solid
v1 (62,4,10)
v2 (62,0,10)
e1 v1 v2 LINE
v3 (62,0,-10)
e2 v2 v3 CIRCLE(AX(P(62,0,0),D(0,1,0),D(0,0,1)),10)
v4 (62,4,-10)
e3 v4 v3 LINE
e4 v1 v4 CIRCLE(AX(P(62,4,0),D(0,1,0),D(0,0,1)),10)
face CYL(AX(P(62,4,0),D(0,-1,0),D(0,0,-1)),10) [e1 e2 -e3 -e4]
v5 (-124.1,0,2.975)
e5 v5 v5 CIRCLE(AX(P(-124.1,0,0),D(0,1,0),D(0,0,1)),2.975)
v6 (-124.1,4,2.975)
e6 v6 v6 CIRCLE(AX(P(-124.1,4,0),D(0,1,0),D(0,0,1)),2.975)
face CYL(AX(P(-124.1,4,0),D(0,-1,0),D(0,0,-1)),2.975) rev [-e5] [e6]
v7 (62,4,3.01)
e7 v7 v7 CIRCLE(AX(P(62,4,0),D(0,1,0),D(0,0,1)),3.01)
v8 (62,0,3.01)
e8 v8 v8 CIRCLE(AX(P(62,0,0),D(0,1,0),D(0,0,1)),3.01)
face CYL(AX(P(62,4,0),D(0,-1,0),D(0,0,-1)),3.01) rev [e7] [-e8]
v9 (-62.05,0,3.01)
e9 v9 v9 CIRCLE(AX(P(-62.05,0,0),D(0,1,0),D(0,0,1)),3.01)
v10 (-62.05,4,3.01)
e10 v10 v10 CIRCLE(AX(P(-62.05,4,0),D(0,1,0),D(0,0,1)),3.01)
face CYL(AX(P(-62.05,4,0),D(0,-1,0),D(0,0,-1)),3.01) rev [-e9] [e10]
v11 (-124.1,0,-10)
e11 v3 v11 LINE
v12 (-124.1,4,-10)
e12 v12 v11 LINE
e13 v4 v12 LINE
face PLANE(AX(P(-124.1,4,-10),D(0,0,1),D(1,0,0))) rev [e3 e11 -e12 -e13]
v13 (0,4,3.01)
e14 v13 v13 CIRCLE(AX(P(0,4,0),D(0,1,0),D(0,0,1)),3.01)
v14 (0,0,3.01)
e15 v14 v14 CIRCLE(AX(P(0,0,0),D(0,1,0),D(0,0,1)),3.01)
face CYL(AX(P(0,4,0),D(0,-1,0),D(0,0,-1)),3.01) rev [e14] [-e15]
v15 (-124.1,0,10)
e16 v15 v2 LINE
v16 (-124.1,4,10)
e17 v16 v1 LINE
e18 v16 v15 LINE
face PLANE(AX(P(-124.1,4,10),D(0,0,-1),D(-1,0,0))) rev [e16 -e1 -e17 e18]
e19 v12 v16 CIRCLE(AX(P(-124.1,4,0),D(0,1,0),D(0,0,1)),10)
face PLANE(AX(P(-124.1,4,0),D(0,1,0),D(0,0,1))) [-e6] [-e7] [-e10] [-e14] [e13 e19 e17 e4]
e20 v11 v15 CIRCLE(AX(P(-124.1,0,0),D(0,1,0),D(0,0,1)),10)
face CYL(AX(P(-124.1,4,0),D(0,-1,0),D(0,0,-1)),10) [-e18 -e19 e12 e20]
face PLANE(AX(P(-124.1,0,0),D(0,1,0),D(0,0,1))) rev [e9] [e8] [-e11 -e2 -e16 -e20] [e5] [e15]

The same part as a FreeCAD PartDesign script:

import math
import FreeCAD as App
import Part
import Sketcher
from FreeCAD import Vector
Q = App.Units.Quantity

doc = App.newDocument("Part")
body = doc.addObject("PartDesign::Body", "Body")

# Sketch on XZ plane
sketch1 = body.newObject("Sketcher::SketchObject", "Sketch")
sketch1.AttachmentSupport = (doc.getObject("XZ_Plane"), [""])
sketch1.MapMode = "FlatFace"
sketch1.addGeometry(Part.LineSegment(Vector(62, -10, 0), Vector(-124.1, -10, 0)), False)
sketch1.addGeometry(Part.ArcOfCircle(Part.Circle(Vector(-124.1, 0, 0), Vector(0, 0, 1), 10), math.radians(90), math.radians(270)), False)
sketch1.addGeometry(Part.LineSegment(Vector(-124.1, 10, 0), Vector(62, 10, 0)), False)
sketch1.addGeometry(Part.ArcOfCircle(Part.Circle(Vector(62, 0, 0), Vector(0, 0, 1), 10), math.radians(-90), math.radians(90)), False)
sketch1.addGeometry(Part.Circle(Vector(62, 0, 0), Vector(0, 0, 1), 3), False)
sketch1.addGeometry(Part.Circle(Vector(0, 0, 0), Vector(0, 0, 1), 3), False)
sketch1.addGeometry(Part.Circle(Vector(-62, 0, 0), Vector(0, 0, 1), 3), False)
sketch1.addGeometry(Part.Circle(Vector(-124.1, 0, 0), Vector(0, 0, 1), 3), False)
sketch1.addConstraint(Sketcher.Constraint("Tangent", 0, 2, 1, 2))
sketch1.addConstraint(Sketcher.Constraint("Tangent", 1, 1, 2, 1))
sketch1.addConstraint(Sketcher.Constraint("Tangent", 2, 2, 3, 2))
sketch1.addConstraint(Sketcher.Constraint("Tangent", 3, 1, 0, 1))
sketch1.addConstraint(Sketcher.Constraint("Horizontal", 0))
sketch1.addConstraint(Sketcher.Constraint("Horizontal", 2))
sketch1.addConstraint(Sketcher.Constraint("Coincident", 5, 3, -1, 1))
sketch1.addConstraint(Sketcher.Constraint("Coincident", 4, 3, 3, 3))
sketch1.addConstraint(Sketcher.Constraint("Coincident", 7, 3, 1, 3))
sketch1.addConstraint(Sketcher.Constraint("Equal", 4, 5))
sketch1.addConstraint(Sketcher.Constraint("Equal", 5, 6))
sketch1.addConstraint(Sketcher.Constraint("PointOnObject", 1, 3, -1))
sketch1.addConstraint(Sketcher.Constraint("PointOnObject", 6, 3, -1))
sketch1.addConstraint(Sketcher.Constraint("Radius", 1, Q("10 mm")))
sketch1.addConstraint(Sketcher.Constraint("Diameter", 4, Q("6.02 mm")))
sketch1.addConstraint(Sketcher.Constraint("Diameter", 7, Q("5.95 mm")))
sketch1.addConstraint(Sketcher.Constraint("DistanceX", 0, 2, 0, 1, Q("186.1 mm")))
sketch1.addConstraint(Sketcher.Constraint("DistanceX", -1, 1, 3, 3, Q("62 mm")))
sketch1.addConstraint(Sketcher.Constraint("DistanceX", 6, 3, -1, 1, Q("62.05 mm")))
pad1 = body.newObject("PartDesign::Pad", "Pad")
pad1.Profile = sketch1
pad1.Length = 4
pad1.Reversed = True

doc.recompute()
